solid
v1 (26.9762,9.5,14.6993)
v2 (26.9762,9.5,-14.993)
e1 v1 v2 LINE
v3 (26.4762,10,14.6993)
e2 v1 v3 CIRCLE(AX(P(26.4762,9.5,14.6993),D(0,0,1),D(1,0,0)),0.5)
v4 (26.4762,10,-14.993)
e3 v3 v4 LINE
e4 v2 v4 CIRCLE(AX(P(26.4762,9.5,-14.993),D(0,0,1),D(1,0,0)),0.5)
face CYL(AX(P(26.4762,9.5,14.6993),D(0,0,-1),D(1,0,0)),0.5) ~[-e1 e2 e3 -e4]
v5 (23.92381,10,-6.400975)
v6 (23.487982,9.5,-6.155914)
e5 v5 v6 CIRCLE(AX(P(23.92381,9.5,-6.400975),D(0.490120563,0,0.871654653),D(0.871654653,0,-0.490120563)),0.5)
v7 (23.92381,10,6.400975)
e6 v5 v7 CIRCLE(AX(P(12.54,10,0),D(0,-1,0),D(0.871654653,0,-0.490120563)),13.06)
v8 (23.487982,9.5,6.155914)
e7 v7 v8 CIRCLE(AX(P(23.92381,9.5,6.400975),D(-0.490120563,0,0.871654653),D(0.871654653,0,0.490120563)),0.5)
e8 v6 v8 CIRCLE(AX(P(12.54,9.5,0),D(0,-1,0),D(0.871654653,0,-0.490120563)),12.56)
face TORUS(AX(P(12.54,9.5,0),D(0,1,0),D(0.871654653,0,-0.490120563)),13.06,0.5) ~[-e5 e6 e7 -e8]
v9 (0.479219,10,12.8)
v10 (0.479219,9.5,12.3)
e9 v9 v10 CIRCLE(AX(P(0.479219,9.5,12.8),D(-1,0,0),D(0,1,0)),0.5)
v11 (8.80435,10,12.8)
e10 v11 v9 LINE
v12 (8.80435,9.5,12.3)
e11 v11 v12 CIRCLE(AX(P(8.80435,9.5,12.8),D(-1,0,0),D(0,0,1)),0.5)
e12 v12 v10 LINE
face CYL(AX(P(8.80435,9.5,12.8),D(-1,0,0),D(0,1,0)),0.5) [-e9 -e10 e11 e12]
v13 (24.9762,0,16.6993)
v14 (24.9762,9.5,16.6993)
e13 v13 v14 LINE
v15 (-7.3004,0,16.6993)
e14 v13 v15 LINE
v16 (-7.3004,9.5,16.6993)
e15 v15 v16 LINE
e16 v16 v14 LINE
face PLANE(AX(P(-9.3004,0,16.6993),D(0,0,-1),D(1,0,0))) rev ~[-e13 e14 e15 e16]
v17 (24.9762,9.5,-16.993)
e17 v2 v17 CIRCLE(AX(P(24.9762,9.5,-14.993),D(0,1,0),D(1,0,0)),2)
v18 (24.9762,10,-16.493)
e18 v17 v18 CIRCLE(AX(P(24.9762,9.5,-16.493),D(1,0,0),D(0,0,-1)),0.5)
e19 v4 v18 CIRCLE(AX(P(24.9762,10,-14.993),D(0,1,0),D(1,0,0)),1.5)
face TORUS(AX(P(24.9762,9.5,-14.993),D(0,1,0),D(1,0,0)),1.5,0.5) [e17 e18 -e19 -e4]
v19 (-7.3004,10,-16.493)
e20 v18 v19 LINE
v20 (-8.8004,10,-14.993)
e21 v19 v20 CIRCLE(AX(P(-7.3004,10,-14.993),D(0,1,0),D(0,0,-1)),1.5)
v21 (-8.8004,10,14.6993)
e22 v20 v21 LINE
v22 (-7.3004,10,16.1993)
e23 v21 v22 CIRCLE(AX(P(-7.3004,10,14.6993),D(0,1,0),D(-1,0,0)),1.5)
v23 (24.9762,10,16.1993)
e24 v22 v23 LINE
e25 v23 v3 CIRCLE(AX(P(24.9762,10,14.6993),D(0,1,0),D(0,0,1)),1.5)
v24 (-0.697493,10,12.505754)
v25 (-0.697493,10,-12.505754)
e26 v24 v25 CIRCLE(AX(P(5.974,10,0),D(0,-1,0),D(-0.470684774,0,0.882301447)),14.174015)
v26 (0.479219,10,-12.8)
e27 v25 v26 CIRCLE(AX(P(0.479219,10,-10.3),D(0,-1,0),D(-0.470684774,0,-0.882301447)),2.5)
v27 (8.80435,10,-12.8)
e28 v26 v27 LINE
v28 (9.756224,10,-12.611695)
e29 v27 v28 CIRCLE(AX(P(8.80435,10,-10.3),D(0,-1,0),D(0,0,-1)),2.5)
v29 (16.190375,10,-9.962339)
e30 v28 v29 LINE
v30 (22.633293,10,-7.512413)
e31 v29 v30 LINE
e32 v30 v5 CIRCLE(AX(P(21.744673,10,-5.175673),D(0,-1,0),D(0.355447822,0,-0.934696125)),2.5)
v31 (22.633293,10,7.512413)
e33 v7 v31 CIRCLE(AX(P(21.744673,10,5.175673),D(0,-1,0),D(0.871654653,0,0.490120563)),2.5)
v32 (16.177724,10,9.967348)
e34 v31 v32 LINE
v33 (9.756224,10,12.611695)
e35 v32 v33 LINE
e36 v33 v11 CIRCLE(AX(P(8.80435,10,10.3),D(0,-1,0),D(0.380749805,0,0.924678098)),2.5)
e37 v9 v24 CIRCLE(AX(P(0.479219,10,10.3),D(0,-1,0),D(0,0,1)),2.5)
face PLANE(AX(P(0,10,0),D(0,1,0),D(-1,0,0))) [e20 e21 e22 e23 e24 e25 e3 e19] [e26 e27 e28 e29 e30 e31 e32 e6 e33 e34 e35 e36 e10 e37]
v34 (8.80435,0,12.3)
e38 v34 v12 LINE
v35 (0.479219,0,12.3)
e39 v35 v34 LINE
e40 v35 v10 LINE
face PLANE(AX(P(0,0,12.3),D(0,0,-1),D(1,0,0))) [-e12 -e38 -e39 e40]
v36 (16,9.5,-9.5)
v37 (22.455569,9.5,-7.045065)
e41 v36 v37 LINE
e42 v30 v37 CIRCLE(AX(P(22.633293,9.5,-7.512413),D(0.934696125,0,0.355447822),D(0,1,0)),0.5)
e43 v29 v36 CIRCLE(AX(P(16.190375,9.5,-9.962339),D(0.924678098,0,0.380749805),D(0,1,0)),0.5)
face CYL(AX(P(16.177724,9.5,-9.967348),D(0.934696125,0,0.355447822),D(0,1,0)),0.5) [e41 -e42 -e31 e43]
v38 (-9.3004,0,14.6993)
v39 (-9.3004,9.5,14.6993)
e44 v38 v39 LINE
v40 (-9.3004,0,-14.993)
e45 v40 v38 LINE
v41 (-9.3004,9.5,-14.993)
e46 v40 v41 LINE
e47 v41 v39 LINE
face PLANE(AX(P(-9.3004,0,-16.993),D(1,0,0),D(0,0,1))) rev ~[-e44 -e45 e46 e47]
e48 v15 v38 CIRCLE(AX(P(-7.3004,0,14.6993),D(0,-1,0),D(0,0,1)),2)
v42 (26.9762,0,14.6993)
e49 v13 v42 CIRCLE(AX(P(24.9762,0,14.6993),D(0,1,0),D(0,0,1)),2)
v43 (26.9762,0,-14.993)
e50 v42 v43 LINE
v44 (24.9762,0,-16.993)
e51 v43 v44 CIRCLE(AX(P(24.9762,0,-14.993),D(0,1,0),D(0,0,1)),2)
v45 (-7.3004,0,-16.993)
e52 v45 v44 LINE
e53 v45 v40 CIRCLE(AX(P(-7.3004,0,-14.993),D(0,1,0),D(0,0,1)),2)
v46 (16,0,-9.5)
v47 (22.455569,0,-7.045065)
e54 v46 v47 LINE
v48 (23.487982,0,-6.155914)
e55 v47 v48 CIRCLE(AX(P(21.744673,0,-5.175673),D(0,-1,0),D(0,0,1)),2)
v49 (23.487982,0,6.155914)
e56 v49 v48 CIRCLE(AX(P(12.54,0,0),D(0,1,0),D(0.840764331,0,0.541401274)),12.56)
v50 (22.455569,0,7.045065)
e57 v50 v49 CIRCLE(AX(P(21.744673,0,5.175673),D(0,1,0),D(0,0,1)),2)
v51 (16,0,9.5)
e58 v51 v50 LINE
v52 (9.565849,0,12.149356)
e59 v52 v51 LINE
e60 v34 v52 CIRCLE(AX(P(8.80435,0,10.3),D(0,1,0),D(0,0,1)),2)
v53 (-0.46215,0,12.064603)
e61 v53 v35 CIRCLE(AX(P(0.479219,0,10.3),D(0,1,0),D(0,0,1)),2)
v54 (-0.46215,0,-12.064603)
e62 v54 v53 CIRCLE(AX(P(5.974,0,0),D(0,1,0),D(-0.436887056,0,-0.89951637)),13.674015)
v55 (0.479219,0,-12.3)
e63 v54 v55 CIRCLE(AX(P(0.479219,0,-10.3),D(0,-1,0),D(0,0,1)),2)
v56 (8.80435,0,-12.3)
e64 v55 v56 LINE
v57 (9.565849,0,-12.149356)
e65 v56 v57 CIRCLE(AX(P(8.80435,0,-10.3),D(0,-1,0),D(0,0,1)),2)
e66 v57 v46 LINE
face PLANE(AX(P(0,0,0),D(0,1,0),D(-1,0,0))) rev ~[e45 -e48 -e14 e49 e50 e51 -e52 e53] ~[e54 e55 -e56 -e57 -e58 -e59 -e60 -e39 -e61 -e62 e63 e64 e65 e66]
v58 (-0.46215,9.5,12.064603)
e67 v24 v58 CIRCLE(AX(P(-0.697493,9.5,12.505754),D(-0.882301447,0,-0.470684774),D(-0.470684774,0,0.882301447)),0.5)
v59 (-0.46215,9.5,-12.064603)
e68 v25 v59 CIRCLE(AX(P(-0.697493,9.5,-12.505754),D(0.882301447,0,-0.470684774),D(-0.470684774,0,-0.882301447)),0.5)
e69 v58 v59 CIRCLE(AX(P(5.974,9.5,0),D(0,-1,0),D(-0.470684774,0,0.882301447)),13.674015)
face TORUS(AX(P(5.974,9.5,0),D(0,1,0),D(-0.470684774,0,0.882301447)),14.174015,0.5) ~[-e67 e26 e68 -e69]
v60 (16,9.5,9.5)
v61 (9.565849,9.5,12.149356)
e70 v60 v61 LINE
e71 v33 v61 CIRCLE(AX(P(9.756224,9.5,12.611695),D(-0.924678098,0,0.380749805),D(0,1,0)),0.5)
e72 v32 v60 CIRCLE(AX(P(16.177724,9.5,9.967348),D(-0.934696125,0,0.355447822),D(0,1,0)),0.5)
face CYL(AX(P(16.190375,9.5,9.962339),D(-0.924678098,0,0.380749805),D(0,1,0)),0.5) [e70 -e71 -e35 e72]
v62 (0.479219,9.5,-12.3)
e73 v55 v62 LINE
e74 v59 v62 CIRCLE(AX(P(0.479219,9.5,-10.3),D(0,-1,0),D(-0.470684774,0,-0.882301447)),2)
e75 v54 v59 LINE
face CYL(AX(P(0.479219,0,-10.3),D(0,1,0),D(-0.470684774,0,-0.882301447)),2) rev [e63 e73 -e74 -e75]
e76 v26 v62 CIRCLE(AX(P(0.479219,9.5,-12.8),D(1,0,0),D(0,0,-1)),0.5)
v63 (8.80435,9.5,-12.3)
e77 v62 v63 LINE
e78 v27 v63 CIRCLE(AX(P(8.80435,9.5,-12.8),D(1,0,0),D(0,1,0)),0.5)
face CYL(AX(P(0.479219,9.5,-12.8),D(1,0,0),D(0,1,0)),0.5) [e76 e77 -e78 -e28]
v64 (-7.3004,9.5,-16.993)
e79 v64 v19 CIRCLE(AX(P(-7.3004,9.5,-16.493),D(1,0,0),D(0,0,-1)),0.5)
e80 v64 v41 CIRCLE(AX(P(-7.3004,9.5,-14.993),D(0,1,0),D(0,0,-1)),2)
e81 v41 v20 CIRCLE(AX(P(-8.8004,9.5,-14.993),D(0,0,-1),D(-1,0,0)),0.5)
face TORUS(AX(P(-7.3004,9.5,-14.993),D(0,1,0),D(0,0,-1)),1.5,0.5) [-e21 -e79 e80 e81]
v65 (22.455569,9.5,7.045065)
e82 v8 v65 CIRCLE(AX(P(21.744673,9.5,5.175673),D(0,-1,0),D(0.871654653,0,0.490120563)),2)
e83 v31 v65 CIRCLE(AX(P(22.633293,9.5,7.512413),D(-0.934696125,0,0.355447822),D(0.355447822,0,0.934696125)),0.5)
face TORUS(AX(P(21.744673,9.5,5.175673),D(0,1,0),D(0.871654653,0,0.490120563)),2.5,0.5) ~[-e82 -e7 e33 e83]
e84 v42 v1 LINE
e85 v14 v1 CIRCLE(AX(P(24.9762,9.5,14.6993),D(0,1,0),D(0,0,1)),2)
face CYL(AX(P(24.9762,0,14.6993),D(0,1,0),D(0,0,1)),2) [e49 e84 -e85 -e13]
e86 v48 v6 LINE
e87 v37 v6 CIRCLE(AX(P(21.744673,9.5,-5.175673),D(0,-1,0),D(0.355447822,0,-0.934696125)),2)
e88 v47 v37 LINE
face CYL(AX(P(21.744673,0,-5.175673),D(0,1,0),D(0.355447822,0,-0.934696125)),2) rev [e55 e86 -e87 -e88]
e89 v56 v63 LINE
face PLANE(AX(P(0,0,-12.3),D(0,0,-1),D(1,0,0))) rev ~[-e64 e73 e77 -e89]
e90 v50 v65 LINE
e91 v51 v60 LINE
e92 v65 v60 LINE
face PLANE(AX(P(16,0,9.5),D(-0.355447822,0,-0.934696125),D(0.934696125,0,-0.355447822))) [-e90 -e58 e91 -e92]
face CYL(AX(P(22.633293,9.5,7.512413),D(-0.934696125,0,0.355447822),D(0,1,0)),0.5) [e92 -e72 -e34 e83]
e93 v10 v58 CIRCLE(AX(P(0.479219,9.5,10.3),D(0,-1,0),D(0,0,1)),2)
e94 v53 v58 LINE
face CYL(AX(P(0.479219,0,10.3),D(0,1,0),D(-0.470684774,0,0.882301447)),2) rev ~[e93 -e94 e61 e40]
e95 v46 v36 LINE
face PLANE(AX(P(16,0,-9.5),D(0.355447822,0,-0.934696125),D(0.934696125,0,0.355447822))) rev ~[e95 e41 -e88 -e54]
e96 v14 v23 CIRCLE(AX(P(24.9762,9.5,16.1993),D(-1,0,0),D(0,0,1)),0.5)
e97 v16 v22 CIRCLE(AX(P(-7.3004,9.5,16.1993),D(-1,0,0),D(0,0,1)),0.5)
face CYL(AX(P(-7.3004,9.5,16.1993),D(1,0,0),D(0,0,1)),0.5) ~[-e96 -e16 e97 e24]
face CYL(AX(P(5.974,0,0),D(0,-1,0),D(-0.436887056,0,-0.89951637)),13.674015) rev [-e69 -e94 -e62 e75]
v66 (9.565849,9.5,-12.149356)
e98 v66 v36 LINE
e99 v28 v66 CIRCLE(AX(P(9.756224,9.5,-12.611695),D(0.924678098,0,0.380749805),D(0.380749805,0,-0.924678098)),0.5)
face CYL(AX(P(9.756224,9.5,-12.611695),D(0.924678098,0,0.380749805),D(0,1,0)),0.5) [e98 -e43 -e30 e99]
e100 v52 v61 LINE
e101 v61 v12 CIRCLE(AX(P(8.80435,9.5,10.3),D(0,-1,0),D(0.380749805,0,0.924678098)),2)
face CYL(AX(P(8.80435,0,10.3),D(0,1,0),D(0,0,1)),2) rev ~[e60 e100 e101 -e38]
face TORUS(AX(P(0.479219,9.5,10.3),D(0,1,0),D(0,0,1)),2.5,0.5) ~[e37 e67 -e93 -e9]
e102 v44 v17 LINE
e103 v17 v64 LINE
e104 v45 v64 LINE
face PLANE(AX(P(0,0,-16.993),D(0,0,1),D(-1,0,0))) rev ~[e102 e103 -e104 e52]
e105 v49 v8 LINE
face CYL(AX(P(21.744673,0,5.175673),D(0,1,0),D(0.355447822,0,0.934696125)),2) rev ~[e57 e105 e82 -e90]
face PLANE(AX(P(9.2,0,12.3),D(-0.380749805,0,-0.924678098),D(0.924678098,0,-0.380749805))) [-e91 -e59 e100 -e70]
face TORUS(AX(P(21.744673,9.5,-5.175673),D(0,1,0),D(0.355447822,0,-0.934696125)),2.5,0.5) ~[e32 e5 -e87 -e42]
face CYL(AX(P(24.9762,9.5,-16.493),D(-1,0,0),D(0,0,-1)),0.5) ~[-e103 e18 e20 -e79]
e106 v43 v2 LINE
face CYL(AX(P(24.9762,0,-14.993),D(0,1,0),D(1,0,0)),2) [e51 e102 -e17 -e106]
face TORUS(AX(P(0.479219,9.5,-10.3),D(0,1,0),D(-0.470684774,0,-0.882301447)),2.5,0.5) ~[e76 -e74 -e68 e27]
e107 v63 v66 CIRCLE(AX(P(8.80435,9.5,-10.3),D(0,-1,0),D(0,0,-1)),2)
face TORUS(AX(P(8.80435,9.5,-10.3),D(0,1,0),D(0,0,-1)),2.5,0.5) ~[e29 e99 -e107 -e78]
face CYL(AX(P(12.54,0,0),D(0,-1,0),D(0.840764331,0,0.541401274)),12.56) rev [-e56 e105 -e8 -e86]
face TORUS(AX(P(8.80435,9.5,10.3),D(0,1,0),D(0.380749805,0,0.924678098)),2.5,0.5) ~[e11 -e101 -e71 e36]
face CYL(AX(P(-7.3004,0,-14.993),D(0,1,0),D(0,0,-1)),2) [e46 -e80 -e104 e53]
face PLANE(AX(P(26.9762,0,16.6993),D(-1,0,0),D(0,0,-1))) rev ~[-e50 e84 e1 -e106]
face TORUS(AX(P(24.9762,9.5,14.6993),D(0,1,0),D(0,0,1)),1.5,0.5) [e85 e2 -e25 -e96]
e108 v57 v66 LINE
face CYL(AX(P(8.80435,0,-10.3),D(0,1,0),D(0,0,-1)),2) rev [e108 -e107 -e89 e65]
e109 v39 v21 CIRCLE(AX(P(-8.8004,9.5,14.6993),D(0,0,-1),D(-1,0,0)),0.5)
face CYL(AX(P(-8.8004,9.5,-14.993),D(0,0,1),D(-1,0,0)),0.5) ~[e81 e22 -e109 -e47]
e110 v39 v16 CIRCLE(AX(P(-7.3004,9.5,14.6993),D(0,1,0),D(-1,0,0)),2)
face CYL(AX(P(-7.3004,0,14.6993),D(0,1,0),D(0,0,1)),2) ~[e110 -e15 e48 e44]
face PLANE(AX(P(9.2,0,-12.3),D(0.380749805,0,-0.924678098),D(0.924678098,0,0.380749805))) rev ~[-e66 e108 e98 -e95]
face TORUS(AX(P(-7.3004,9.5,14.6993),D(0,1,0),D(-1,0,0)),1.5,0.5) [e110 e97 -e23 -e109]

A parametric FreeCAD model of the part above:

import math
import FreeCAD as App
import Part
import Sketcher
from FreeCAD import Vector
Q = App.Units.Quantity


def edges_at(feature, points):
    """Names of the edges that pass closest to the given points."""
    edges = feature.Shape.Edges
    near = lambda p: min(range(len(edges)), key=lambda i: edges[i].distToShape(Part.Vertex(*p))[0])
    return sorted({f"Edge{near(p) + 1}" for p in points})


def add_polygon(sketch, points):
    """Adds a closed chain of lines whose ends are joined by coincident constraints."""
    first, n = sketch.GeometryCount, len(points)
    for a, b in zip(points, points[1:] + points[:1]):
        sketch.addGeometry(Part.LineSegment(App.Vector(*a, 0), App.Vector(*b, 0)), False)
    for i in range(n):
        sketch.addConstraint(Sketcher.Constraint("Coincident", first + i, 2, first + (i + 1) % n, 1))

doc = App.newDocument("Part")
params = doc.addObject("Spreadsheet::Sheet", "Params")
for row, (alias, value) in enumerate([
    ("sketch1_width", "9.2 mm"),
    ("sketch1_radius", "12.56 mm"),
    ("pad1_length", "10 mm"),
    ("fillet_radius", "2 mm"),
    ("fillet2_radius", "2 mm"),
    ("fillet3_radius", "0.5 mm"),
    ("fillet4_radius", "0.5 mm"),
], start=1):
    params.set(f"A{row}", alias)
    params.set(f"B{row}", "=" + value)
    params.setAlias(f"B{row}", alias)

body = doc.addObject("PartDesign::Body", "Body")

# Sketch on XZ plane
sketch1 = body.newObject("Sketcher::SketchObject", "Sketch")
sketch1.AttachmentSupport = (doc.getObject("XZ_Plane"), [""])
sketch1.MapMode = "FlatFace"
add_polygon(sketch1, [(-9, 17), (27, 17), (27, -17), (-9, -17)])  # lines 0-3
sketch1.addGeometry(Part.ArcOfCircle(Part.Circle(Vector(6, 0, 0), Vector(0, 0, 1), 14), math.radians(116), math.radians(244)), False)  # 4
sketch1.addGeometry(Part.LineSegment(Vector(0, -12, 0), Vector(9, -12, 0)), False)  # 5
sketch1.addGeometry(Part.LineSegment(Vector(9, -12, 0), Vector(16, -10, 0)), False)  # 6
sketch1.addGeometry(Part.LineSegment(Vector(16, -10, 0), Vector(23, -7, 0)), False)  # 7
sketch1.addGeometry(Part.ArcOfCircle(Part.Circle(Vector(13, 0, 0), Vector(0, 0, 1), 13), math.radians(-33), math.radians(33)), False)  # 8
sketch1.addGeometry(Part.LineSegment(Vector(23, 7, 0), Vector(16, 10, 0)), False)  # 9
sketch1.addGeometry(Part.LineSegment(Vector(16, 10, 0), Vector(9, 12, 0)), False)  # 10
sketch1.addGeometry(Part.LineSegment(Vector(9, 12, 0), Vector(0, 12, 0)), False)  # 11
sketch1.addConstraint([
    Sketcher.Constraint("Coincident", 4, 2, 5, 1),
    Sketcher.Constraint("Coincident", 5, 2, 6, 1),
    Sketcher.Constraint("Coincident", 6, 2, 7, 1),
    Sketcher.Constraint("Coincident", 7, 2, 8, 1),
    Sketcher.Constraint("Coincident", 8, 2, 9, 1),
    Sketcher.Constraint("Coincident", 9, 2, 10, 1),
    Sketcher.Constraint("Coincident", 10, 2, 11, 1),
    Sketcher.Constraint("Coincident", 11, 2, 4, 1),
    Sketcher.Constraint("Horizontal", 0),
    Sketcher.Constraint("Vertical", 1),
    Sketcher.Constraint("Horizontal", 2),
    Sketcher.Constraint("Vertical", 3),
    Sketcher.Constraint("Horizontal", 5),
    Sketcher.Constraint("Horizontal", 11),
    Sketcher.Constraint("Symmetric", 4, 2, 11, 2, -1, 1),
    Sketcher.Constraint("Symmetric", 7, 2, 8, 2, -1),
    Sketcher.Constraint("Symmetric", 6, 2, 9, 2, -1),
    Sketcher.Constraint("PointOnObject", 4, 3, -1),
    Sketcher.Constraint("Vertical", 5, 2, 10, 2),
    Sketcher.Constraint("DistanceX", 5, 1, 5, 2, Q("9.2 mm")),
    Sketcher.Constraint("DistanceY", 7, 2, -1, 1, Q("6.8 mm")),
    Sketcher.Constraint("DistanceX", 5, 2, 6, 2, Q("6.8 mm")),
    Sketcher.Constraint("DistanceY", 5, 2, 6, 2, Q("2.8 mm")),
    Sketcher.Constraint("DistanceX", 6, 2, 7, 2, Q("7.1 mm")),
    Sketcher.Constraint("DistanceY", 6, 2, 7, 2, Q("2.7 mm")),
    Sketcher.Constraint("Radius", 8, Q("12.56 mm")),
    Sketcher.Constraint("Radius", 4, Q("13.674 mm")),
    Sketcher.Constraint("DistanceX", 0, 1, 0, 2, Q("36.2766 mm")),
    Sketcher.Constraint("DistanceY", 1, 2, 1, 1, Q("33.6923 mm")),
    Sketcher.Constraint("DistanceY", 1, 2, -1, 1, Q("16.993 mm")),
    Sketcher.Constraint("DistanceX", -1, 1, 0, 2, Q("26.9762 mm")),
])
sketch1.setExpression("Constraints[23]", "Params.sketch1_width")
sketch1.setExpression("Constraints[29]", "Params.sketch1_radius")
pad1 = body.newObject("PartDesign::Pad", "Pad")
pad1.Profile = sketch1
pad1.setExpression("Length", "Params.pad1_length")
pad1.Reversed = True
doc.recompute()

fillet = body.newObject("PartDesign::Fillet", "Fillet")
fillet.Base = (pad1, edges_at(pad1, [
    (0, 5, -12.3),
    (9.2, 5, -12.3),
    (16, 5, -9.5),
    (23.1, 5, -6.8),
    (23.1, 5, 6.8),
    (16, 5, 9.5),
    (9.2, 5, 12.3),
    (0, 5, 12.3),
]))
fillet.setExpression("Radius", "Params.fillet_radius")
doc.recompute()

fillet2 = body.newObject("PartDesign::Fillet", "Fillet001")
fillet2.Base = (fillet, edges_at(fillet, [
    (26.976, 5, -16.993),
    (-9.3, 5, -16.993),
    (-9.3, 5, 16.699),
    (26.976, 5, 16.699),
]))
fillet2.setExpression("Radius", "Params.fillet2_radius")
doc.recompute()

fillet3 = body.newObject("PartDesign::Fillet", "Fillet002")
fillet3.Base = (fillet2, edges_at(fillet2, [
    (26.39, 10, -16.407),
    (8.838, 10, -16.993),
    (-8.715, 10, -16.407),
    (-9.3, 10, -0.147),
    (-8.715, 10, 16.113),
    (8.838, 10, 16.699),
    (26.39, 10, 16.113),
    (26.976, 10, -0.147),
]))
fillet3.setExpression("Radius", "Params.fillet3_radius")
doc.recompute()

fillet4 = body.newObject("PartDesign::Fillet", "Fillet003")
fillet4.Base = (fillet3, edges_at(fillet3, [
    (-0.006, 10, -12.24),
    (4.642, 10, -12.3),
    (9.193, 10, -12.262),
    (12.783, 10, -10.825),
    (23.05, 10, -6.691),
    (19.228, 10, -8.273),
    (25.1, 10, 0),
    (23.05, 10, 6.691),
    (19.228, 10, 8.273),
    (9.193, 10, 12.262),
    (12.783, 10, 10.825),
    (4.642, 10, 12.3),
    (-0.006, 10, 12.24),
    (-7.7, 10, 0),
]))
fillet4.setExpression("Radius", "Params.fillet4_radius")

doc.recompute()
